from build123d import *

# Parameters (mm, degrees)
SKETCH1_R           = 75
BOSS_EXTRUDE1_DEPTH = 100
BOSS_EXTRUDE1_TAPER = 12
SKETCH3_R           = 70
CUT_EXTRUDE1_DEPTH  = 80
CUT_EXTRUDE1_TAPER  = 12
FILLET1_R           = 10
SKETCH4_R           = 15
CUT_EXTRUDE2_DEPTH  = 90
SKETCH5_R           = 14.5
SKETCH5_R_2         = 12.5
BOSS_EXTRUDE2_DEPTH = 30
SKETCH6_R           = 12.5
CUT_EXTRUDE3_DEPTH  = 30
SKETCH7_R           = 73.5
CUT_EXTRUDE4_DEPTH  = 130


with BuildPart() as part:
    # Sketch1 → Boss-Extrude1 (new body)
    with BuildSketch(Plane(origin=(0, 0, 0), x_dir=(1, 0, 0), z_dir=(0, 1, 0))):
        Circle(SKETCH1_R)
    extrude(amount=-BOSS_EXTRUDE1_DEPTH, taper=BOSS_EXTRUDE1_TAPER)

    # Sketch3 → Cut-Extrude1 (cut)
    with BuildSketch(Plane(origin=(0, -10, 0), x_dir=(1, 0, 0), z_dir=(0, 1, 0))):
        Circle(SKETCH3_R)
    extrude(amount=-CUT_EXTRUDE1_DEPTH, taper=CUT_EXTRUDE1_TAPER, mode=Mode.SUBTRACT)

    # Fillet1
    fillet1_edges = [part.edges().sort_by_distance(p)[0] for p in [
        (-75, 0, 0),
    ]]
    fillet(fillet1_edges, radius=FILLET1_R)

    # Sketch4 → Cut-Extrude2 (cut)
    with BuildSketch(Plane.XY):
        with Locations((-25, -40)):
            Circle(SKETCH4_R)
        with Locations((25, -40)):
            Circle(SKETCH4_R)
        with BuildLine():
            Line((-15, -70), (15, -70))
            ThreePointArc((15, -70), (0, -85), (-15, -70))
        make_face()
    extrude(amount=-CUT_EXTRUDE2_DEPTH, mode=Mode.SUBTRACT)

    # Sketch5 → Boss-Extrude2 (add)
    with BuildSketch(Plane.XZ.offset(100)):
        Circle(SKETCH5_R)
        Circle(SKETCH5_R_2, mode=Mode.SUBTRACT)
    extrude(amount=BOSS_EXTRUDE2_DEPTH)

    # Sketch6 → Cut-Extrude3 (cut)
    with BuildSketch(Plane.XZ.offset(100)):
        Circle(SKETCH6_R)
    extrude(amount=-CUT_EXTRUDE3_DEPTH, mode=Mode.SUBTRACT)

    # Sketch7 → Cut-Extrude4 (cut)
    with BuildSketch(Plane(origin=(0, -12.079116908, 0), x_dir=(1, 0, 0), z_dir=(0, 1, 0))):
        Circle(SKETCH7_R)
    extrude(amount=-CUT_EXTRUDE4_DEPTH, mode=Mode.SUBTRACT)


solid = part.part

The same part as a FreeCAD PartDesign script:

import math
import FreeCAD as App
import Part
import Sketcher
from FreeCAD import Vector


def edges_at(feature, points):
    """Names of the edges that pass closest to the given points."""
    edges = feature.Shape.Edges
    near = lambda p: min(range(len(edges)), key=lambda i: edges[i].distToShape(Part.Vertex(*p))[0])
    return sorted({f"Edge{near(p) + 1}" for p in points})

doc = App.newDocument("Part")
params = doc.addObject("Spreadsheet::Sheet", "Params")
for row, (alias, value) in enumerate([
    ("sketch1_diameter", "150 mm"),
    ("pad1_length", "100 mm"),
    ("pad1_taper", "-12 deg"),
    ("sketch2_diameter", "140 mm"),
    ("pocket1_length", "80 mm"),
    ("pocket1_taper", "-12 deg"),
    ("fillet_radius", "10 mm"),
    ("sketch3_diameter", "30 mm"),
    ("pocket2_length", "90 mm"),
    ("sketch4_diameter", "29 mm"),
    ("sketch4_diameter2", "25 mm"),
    ("pad2_length", "30 mm"),
    ("sketch5_diameter", "25 mm"),
    ("pocket3_length", "30 mm"),
    ("sketch6_diameter", "147 mm"),
    ("pocket4_length", "130 mm"),
], start=1):
    params.set(f"A{row}", alias)
    params.set(f"B{row}", "=" + value)
    params.setAlias(f"B{row}", alias)

body = doc.addObject("PartDesign::Body", "Body")

sketch1 = body.newObject("Sketcher::SketchObject", "Sketch")
sketch1.AttachmentSupport = (doc.getObject("XZ_Plane"), [""])
sketch1.MapMode = "FlatFace"
sketch1.addGeometry(Part.Circle(Vector(0, 0, 0), Vector(0, 0, 1), 75), False)
sketch1.addConstraint(Sketcher.Constraint("Coincident", 0, 3, -1, 1))
sketch1.addConstraint(Sketcher.Constraint("Diameter", 0, 150.0))
sketch1.setExpression("Constraints[1]", "Params.sketch1_diameter")
pad1 = body.newObject("PartDesign::Pad", "Pad")
pad1.Profile = sketch1
pad1.setExpression("Length", "Params.pad1_length")
pad1.setExpression("TaperAngle", "Params.pad1_taper")

sketch2 = body.newObject("Sketcher::SketchObject", "Sketch001")
sketch2.AttachmentSupport = (doc.getObject("XZ_Plane"), [""])
sketch2.MapMode = "FlatFace"
sketch2.AttachmentOffset = App.Placement(Vector(0, 0, 10), App.Rotation())
sketch2.addGeometry(Part.Circle(Vector(0, 0, 0), Vector(0, 0, 1), 70), False)
sketch2.addConstraint(Sketcher.Constraint("Coincident", 0, 3, -1, 1))
sketch2.addConstraint(Sketcher.Constraint("Diameter", 0, 140.0))
sketch2.setExpression("Constraints[1]", "Params.sketch2_diameter")
pocket1 = body.newObject("PartDesign::Pocket", "Pocket")
pocket1.Profile = sketch2
pocket1.setExpression("Length", "Params.pocket1_length")
pocket1.Reversed = True
pocket1.setExpression("TaperAngle", "Params.pocket1_taper")
doc.recompute()

fillet = body.newObject("PartDesign::Fillet", "Fillet")
fillet.Base = (pocket1, edges_at(pocket1, [(-75, 0, 0)]))
fillet.setExpression("Radius", "Params.fillet_radius")

sketch3 = body.newObject("Sketcher::SketchObject", "Sketch002")
sketch3.AttachmentSupport = (doc.getObject("XY_Plane"), [""])
sketch3.MapMode = "FlatFace"
sketch3.addGeometry(Part.Circle(Vector(-25, -40, 0), Vector(0, 0, 1), 15), False)
sketch3.addGeometry(Part.Circle(Vector(25, -40, 0), Vector(0, 0, 1), 15), False)
sketch3.addGeometry(Part.LineSegment(Vector(15, -70, 0), Vector(-15, -70, 0)), False)
sketch3.addGeometry(Part.ArcOfCircle(Part.Circle(Vector(0, -70, 0), Vector(0, 0, 1), 15), math.radians(180), math.radians(360)), False)
sketch3.addConstraint(Sketcher.Constraint("Coincident", 2, 1, 3, 2))
sketch3.addConstraint(Sketcher.Constraint("Coincident", 3, 1, 2, 2))
sketch3.addConstraint(Sketcher.Constraint("Horizontal", 2))
sketch3.addConstraint(Sketcher.Constraint("Equal", 0, 1))
sketch3.addConstraint(Sketcher.Constraint("Equal", 1, 3))
sketch3.addConstraint(Sketcher.Constraint("Symmetric", 0, 3, 1, 3, -2))
sketch3.addConstraint(Sketcher.Constraint("PointOnObject", 3, 3, -2))
sketch3.addConstraint(Sketcher.Constraint("Horizontal", 3, 3, 2, 1))
sketch3.addConstraint(Sketcher.Constraint("Diameter", 0, 30.0))
sketch3.addConstraint(Sketcher.Constraint("DistanceX", 0, 3, -1, 1, 25.0))
sketch3.addConstraint(Sketcher.Constraint("DistanceY", 0, 3, -1, 1, 40.0))
sketch3.addConstraint(Sketcher.Constraint("DistanceY", 3, 3, -1, 1, 70.0))
sketch3.setExpression("Constraints[8]", "Params.sketch3_diameter")
pocket2 = body.newObject("PartDesign::Pocket", "Pocket001")
pocket2.Profile = sketch3
pocket2.setExpression("Length", "Params.pocket2_length")

sketch4 = body.newObject("Sketcher::SketchObject", "Sketch003")
sketch4.AttachmentSupport = (doc.getObject("XZ_Plane"), [""])
sketch4.MapMode = "FlatFace"
sketch4.AttachmentOffset = App.Placement(Vector(0, 0, 100), App.Rotation())
sketch4.addGeometry(Part.Circle(Vector(0, 0, 0), Vector(0, 0, 1), 14), False)
sketch4.addGeometry(Part.Circle(Vector(0, 0, 0), Vector(0, 0, 1), 12), False)
sketch4.addConstraint(Sketcher.Constraint("Coincident", 0, 3, -1, 1))
sketch4.addConstraint(Sketcher.Constraint("Coincident", 1, 3, -1, 1))
sketch4.addConstraint(Sketcher.Constraint("Diameter", 0, 29.0))
sketch4.addConstraint(Sketcher.Constraint("Diameter", 1, 25.0))
sketch4.setExpression("Constraints[2]", "Params.sketch4_diameter")
sketch4.setExpression("Constraints[3]", "Params.sketch4_diameter2")
pad2 = body.newObject("PartDesign::Pad", "Pad001")
pad2.Profile = sketch4
pad2.setExpression("Length", "Params.pad2_length")

sketch5 = body.newObject("Sketcher::SketchObject", "Sketch004")
sketch5.AttachmentSupport = (doc.getObject("XZ_Plane"), [""])
sketch5.MapMode = "FlatFace"
sketch5.AttachmentOffset = App.Placement(Vector(0, 0, 100), App.Rotation())
sketch5.addGeometry(Part.Circle(Vector(0, 0, 0), Vector(0, 0, 1), 12), False)
sketch5.addConstraint(Sketcher.Constraint("Coincident", 0, 3, -1, 1))
sketch5.addConstraint(Sketcher.Constraint("Diameter", 0, 25.0))
sketch5.setExpression("Constraints[1]", "Params.sketch5_diameter")
pocket3 = body.newObject("PartDesign::Pocket", "Pocket002")
pocket3.Profile = sketch5
pocket3.setExpression("Length", "Params.pocket3_length")

sketch6 = body.newObject("Sketcher::SketchObject", "Sketch005")
sketch6.AttachmentSupport = (doc.getObject("XZ_Plane"), [""])
sketch6.MapMode = "FlatFace"
sketch6.AttachmentOffset = App.Placement(Vector(0, 0, 12.079117), App.Rotation())
sketch6.addGeometry(Part.Circle(Vector(0, 0, 0), Vector(0, 0, 1), 74), False)
sketch6.addConstraint(Sketcher.Constraint("Coincident", 0, 3, -1, 1))
sketch6.addConstraint(Sketcher.Constraint("Diameter", 0, 147.0))
sketch6.setExpression("Constraints[1]", "Params.sketch6_diameter")
pocket4 = body.newObject("PartDesign::Pocket", "Pocket003")
pocket4.Profile = sketch6
pocket4.setExpression("Length", "Params.pocket4_length")
pocket4.Reversed = True

doc.recompute()
